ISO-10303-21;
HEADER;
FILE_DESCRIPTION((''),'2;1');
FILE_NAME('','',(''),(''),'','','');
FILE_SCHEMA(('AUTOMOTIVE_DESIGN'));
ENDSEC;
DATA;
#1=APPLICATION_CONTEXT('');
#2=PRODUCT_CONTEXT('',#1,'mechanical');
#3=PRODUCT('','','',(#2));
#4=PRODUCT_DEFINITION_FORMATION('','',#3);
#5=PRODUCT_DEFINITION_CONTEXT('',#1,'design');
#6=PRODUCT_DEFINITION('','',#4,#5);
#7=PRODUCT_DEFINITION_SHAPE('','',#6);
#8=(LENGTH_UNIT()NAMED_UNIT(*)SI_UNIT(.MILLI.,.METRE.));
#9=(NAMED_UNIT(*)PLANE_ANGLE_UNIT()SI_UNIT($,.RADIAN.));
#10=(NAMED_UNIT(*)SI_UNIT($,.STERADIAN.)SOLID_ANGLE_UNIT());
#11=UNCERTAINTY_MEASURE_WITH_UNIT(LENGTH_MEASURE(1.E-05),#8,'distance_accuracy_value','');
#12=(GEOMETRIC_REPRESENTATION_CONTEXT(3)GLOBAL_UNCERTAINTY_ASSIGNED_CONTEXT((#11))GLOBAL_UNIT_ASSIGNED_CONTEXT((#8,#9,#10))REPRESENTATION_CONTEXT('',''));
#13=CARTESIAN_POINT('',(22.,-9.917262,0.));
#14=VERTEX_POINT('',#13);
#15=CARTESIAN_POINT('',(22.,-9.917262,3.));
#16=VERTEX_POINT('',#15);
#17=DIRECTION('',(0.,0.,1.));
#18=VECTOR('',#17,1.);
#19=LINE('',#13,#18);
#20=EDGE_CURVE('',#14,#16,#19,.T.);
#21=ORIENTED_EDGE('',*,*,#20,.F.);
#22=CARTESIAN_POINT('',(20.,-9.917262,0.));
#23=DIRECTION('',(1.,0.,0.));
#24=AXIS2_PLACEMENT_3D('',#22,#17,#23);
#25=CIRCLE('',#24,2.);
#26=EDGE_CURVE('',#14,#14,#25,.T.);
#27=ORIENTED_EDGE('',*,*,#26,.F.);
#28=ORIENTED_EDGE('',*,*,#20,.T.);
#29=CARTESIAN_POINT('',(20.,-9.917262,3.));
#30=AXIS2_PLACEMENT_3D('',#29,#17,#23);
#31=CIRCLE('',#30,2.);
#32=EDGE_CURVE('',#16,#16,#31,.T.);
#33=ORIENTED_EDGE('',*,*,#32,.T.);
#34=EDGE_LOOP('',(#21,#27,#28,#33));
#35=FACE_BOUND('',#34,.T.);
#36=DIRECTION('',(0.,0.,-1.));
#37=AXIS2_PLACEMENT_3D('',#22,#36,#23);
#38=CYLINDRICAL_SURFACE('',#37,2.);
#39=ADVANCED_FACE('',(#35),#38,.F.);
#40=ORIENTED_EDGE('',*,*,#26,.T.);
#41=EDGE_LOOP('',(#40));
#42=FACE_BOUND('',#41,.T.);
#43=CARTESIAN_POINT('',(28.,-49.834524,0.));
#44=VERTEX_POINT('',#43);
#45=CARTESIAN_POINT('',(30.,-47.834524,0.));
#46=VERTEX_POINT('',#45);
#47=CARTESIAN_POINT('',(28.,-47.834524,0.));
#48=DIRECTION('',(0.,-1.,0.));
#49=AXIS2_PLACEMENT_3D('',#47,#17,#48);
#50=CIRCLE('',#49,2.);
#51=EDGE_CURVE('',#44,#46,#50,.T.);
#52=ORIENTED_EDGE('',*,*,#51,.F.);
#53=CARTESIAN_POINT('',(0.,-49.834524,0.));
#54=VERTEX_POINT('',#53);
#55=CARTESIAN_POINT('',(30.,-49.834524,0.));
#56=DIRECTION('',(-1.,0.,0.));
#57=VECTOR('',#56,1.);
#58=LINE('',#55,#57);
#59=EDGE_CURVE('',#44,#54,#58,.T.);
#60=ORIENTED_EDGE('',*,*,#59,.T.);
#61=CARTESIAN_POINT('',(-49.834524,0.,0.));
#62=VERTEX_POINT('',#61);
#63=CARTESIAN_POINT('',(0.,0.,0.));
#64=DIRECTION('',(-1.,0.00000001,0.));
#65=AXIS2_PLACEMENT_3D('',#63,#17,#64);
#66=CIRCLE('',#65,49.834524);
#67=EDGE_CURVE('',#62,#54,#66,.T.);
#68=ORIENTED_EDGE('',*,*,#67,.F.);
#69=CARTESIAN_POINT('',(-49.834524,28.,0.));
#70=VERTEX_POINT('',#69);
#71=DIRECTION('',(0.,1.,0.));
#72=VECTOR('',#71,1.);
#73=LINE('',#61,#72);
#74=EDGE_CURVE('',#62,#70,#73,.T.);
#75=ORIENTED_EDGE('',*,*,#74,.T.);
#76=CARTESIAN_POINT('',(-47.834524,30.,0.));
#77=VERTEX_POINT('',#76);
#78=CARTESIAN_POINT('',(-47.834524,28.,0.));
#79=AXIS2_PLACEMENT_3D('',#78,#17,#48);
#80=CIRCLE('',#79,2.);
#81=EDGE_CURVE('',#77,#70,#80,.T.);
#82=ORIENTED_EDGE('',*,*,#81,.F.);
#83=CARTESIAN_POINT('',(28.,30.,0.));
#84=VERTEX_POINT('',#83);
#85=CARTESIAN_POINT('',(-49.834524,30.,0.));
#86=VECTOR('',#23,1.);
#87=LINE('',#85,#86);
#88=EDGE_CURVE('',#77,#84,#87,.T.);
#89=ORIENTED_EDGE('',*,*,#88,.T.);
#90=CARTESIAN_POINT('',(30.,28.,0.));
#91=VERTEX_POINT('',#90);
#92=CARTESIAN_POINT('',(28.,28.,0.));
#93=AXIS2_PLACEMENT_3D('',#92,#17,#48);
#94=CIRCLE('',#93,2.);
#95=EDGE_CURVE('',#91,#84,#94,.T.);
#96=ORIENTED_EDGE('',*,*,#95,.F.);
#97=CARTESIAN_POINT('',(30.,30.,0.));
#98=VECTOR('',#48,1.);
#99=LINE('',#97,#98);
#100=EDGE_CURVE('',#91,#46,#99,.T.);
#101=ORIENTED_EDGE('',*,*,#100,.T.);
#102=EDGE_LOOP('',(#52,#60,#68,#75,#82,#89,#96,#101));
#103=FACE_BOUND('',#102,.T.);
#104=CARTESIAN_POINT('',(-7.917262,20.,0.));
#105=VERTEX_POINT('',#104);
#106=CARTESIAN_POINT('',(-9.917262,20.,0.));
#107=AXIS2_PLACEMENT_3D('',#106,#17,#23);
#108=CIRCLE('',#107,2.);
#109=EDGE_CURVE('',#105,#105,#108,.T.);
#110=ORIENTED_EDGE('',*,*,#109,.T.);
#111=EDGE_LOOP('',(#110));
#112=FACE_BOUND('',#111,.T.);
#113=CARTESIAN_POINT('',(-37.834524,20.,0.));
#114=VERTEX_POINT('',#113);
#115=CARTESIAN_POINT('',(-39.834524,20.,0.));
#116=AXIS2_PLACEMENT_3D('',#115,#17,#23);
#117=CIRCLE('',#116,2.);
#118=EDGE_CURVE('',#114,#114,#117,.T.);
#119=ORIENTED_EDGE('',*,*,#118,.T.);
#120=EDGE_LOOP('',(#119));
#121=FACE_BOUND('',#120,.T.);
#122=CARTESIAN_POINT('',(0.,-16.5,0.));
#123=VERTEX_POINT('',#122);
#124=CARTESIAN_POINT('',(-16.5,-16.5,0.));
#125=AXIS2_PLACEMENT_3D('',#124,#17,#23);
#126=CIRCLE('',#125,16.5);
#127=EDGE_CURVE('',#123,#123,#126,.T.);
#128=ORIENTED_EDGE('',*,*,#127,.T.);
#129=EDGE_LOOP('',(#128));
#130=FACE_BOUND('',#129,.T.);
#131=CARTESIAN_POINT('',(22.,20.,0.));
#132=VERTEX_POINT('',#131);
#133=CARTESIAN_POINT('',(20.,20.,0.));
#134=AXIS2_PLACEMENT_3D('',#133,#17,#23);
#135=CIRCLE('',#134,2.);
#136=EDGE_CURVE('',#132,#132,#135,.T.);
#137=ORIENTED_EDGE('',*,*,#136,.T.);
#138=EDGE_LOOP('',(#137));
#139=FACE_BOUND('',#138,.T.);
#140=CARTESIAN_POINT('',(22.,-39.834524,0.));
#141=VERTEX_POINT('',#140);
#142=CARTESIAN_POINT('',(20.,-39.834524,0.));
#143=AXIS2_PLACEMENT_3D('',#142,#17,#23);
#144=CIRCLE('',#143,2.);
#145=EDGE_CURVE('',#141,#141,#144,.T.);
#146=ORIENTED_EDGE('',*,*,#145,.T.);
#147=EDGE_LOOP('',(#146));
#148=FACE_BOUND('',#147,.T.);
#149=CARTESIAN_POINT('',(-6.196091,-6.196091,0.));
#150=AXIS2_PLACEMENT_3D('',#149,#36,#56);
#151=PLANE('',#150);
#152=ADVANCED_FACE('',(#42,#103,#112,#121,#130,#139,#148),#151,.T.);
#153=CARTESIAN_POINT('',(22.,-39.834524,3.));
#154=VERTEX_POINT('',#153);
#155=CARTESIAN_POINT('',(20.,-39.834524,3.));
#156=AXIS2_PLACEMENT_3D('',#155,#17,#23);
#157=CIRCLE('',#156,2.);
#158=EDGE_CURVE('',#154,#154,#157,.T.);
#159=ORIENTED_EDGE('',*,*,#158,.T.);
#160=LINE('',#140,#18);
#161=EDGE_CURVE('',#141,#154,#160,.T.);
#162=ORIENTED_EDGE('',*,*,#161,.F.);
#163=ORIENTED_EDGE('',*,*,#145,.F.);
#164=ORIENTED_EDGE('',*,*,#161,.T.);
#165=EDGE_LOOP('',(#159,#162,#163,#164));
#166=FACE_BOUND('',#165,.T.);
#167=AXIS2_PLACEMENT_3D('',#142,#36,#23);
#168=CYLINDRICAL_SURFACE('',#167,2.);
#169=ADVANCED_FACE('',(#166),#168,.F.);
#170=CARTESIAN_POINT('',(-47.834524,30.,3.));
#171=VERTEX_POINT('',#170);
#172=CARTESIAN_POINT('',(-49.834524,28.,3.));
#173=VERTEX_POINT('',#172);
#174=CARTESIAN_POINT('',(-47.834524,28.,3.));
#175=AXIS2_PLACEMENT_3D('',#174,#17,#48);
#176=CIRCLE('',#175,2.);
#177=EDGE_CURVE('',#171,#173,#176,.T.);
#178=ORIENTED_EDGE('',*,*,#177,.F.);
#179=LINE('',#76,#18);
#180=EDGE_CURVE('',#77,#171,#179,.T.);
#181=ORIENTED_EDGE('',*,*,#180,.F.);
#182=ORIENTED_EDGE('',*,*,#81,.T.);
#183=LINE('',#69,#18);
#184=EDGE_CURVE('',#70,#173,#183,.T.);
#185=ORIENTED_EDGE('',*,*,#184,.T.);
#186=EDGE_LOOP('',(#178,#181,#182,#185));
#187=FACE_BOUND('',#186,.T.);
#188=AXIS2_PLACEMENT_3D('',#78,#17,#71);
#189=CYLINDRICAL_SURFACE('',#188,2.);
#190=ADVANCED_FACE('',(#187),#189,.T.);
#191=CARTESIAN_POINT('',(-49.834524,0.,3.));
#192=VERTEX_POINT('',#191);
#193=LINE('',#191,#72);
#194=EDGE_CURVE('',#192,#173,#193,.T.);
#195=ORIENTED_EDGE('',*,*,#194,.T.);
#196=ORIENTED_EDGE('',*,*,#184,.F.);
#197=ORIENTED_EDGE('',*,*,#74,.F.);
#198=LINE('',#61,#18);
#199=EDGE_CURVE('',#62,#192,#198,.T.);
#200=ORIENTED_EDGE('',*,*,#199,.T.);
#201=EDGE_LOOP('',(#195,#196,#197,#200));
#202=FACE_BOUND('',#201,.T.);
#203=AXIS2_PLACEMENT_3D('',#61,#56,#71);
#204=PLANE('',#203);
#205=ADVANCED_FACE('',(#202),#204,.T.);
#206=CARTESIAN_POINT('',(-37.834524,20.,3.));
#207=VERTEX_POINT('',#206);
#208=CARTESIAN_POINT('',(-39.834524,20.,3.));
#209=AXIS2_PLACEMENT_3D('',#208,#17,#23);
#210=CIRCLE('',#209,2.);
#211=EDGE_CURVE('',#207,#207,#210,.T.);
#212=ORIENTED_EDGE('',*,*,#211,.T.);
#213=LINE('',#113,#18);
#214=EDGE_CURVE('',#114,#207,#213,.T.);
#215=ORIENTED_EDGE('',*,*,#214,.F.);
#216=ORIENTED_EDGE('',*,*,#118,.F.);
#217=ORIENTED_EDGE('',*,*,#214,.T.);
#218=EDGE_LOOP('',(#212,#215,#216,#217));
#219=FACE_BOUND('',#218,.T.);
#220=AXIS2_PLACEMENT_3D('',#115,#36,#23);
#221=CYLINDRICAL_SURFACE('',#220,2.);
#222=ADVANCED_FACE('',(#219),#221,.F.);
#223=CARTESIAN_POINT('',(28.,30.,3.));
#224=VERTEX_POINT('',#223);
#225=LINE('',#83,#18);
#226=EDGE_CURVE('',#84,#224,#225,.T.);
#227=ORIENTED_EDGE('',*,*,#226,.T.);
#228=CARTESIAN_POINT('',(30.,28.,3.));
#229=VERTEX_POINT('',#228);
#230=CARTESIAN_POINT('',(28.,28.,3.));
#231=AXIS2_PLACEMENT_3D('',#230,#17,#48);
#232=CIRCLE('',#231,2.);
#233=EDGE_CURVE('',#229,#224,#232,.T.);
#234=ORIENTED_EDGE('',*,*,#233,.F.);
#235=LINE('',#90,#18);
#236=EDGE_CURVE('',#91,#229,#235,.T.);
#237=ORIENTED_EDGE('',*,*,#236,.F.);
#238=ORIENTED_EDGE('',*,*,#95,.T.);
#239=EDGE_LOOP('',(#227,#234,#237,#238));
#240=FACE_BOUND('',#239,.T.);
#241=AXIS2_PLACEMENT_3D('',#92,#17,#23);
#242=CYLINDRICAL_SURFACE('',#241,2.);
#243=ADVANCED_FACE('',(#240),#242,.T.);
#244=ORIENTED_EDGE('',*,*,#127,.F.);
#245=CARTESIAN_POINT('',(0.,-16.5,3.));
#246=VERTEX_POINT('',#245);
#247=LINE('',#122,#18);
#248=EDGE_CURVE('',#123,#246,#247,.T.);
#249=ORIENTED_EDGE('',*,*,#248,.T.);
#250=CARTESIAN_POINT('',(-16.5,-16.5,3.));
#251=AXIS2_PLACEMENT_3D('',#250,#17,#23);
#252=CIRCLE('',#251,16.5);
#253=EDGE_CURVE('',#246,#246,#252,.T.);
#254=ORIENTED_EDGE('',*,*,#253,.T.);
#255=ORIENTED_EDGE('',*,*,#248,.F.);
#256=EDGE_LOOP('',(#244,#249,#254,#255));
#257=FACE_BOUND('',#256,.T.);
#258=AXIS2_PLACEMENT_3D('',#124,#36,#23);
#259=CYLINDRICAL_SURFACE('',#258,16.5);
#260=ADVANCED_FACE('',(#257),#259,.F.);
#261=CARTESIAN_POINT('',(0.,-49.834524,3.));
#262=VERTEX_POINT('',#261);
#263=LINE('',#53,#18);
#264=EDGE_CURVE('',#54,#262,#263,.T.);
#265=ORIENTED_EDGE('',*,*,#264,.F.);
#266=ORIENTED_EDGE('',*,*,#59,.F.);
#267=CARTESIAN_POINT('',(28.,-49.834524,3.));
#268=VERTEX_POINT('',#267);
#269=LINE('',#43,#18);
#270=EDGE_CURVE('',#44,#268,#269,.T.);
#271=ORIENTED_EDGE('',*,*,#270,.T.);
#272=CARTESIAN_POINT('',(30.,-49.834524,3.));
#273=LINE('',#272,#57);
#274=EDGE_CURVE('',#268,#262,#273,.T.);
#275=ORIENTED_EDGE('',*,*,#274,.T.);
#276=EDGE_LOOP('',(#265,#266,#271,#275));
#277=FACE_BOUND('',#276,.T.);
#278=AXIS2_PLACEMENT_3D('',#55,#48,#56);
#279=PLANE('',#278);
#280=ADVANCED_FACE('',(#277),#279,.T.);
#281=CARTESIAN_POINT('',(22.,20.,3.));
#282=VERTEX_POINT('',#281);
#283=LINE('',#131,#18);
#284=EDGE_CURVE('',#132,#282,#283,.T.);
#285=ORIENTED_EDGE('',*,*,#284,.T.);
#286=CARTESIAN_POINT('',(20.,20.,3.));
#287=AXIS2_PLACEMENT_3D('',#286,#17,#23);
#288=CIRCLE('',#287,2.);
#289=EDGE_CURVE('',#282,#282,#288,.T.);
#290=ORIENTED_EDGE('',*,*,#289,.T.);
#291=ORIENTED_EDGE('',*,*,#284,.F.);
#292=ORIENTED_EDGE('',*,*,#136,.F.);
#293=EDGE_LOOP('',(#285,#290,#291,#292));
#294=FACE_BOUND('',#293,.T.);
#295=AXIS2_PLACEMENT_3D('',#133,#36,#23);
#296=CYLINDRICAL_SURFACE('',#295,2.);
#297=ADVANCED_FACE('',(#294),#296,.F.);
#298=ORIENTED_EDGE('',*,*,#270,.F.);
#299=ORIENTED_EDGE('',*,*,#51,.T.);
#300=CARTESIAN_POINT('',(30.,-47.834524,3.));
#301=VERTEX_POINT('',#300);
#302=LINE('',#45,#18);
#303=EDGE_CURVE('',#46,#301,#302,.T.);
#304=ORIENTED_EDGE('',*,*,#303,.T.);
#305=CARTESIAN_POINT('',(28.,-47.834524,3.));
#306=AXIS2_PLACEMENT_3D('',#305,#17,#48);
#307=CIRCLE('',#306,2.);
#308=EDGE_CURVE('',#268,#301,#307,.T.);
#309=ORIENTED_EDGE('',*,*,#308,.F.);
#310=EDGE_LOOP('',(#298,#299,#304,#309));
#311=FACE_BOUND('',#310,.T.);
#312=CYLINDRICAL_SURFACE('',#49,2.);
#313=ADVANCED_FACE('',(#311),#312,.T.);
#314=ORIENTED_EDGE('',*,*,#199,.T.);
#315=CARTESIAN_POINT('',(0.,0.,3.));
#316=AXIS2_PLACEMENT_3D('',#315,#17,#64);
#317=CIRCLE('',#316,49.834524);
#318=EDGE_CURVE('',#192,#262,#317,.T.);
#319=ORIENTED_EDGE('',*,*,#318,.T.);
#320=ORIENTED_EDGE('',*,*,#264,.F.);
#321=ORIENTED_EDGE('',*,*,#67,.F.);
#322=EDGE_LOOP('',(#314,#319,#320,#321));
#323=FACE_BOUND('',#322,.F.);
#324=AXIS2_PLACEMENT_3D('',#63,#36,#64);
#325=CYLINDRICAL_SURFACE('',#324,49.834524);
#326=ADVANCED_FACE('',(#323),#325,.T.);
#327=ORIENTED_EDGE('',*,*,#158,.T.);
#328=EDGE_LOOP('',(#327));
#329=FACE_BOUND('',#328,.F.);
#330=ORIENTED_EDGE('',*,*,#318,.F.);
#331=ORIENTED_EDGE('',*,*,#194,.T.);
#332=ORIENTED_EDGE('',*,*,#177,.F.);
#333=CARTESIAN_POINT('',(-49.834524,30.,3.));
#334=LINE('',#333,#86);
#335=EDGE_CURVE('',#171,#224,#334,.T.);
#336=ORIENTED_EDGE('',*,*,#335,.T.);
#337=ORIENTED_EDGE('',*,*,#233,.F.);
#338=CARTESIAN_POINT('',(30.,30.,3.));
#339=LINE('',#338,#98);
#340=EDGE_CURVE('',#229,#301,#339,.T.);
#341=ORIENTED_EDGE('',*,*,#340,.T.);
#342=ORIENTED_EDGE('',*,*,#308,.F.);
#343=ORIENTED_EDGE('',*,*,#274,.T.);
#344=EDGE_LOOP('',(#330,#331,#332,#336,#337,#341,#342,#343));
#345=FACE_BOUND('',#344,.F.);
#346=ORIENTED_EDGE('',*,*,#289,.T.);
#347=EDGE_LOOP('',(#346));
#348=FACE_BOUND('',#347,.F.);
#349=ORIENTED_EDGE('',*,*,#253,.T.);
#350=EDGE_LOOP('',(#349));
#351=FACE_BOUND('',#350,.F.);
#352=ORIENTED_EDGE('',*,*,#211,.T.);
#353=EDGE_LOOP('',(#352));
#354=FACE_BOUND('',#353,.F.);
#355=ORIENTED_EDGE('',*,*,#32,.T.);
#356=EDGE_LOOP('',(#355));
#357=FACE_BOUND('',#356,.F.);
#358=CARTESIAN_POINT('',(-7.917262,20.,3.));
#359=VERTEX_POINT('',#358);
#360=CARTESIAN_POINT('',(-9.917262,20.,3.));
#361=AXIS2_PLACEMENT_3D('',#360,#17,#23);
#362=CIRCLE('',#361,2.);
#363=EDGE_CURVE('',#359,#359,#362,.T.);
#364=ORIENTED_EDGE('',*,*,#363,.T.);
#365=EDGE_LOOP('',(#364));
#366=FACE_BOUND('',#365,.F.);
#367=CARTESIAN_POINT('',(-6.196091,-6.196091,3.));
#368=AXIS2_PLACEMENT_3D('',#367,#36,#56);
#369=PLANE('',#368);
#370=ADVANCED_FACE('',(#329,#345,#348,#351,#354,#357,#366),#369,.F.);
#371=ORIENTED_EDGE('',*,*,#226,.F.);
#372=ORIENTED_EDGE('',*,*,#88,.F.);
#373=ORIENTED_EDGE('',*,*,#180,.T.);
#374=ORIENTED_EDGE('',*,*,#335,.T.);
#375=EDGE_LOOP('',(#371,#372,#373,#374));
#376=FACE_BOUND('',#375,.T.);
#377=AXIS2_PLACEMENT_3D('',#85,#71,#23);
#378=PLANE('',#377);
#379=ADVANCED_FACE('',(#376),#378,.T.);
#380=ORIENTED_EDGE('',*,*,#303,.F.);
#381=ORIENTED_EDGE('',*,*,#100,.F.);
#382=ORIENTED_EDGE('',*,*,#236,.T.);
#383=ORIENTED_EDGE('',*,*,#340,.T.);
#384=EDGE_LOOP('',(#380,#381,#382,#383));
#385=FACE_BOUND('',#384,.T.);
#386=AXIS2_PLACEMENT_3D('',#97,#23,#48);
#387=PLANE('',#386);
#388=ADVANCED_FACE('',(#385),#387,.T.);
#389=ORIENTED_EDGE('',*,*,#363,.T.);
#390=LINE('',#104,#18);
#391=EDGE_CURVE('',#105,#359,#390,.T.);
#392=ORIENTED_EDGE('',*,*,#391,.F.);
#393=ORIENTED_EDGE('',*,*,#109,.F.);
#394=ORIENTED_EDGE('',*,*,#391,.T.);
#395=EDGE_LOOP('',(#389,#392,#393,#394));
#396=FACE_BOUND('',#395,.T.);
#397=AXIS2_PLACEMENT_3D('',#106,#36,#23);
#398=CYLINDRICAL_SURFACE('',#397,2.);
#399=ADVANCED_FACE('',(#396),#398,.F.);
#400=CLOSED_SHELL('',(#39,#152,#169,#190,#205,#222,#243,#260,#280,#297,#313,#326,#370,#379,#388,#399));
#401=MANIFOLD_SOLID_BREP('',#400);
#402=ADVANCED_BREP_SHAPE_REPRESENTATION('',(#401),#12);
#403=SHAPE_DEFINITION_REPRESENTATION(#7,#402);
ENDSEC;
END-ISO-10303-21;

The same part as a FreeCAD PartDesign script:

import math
import FreeCAD as App
import Part
import Sketcher


def edges_at(feature, points):
    """Names of the edges that pass closest to the given points."""
    edges = feature.Shape.Edges
    near = lambda p: min(range(len(edges)), key=lambda i: edges[i].distToShape(Part.Vertex(*p))[0])
    return sorted({f"Edge{near(p) + 1}" for p in points})

doc = App.newDocument("Part")
body = doc.addObject("PartDesign::Body", "Body")

sketch1 = body.newObject("Sketcher::SketchObject", "Sketch")
sketch1.AttachmentSupport = (doc.getObject("XY_Plane"), [""])
sketch1.MapMode = "FlatFace"
sketch1.addGeometry(Part.LineSegment(App.Vector(0, -49.8, 0), App.Vector(30, -49.8, 0)), False)
sketch1.addGeometry(Part.LineSegment(App.Vector(30, -49.8, 0), App.Vector(30, 30, 0)), False)
sketch1.addGeometry(Part.LineSegment(App.Vector(30, 30, 0), App.Vector(-49.8, 30, 0)), False)
sketch1.addGeometry(Part.LineSegment(App.Vector(-49.8, 30, 0), App.Vector(-49.8, 0, 0)), False)
sketch1.addGeometry(Part.ArcOfCircle(Part.Circle(App.Vector(0, 0, 0), App.Vector(0, 0, 1), 49.8), math.radians(180), math.radians(270)), False)
sketch1.addGeometry(Part.Circle(App.Vector(20, -39.8, 0), App.Vector(0, 0, 1), 2), False)
sketch1.addGeometry(Part.Circle(App.Vector(-16.5, -16.5, 0), App.Vector(0, 0, 1), 16.5), False)
sketch1.addGeometry(Part.Circle(App.Vector(20, -9.9, 0), App.Vector(0, 0, 1), 2), False)
sketch1.addGeometry(Part.Circle(App.Vector(20, 20, 0), App.Vector(0, 0, 1), 2), False)
sketch1.addGeometry(Part.Circle(App.Vector(-9.9, 20, 0), App.Vector(0, 0, 1), 2), False)
sketch1.addGeometry(Part.Circle(App.Vector(-39.8, 20, 0), App.Vector(0, 0, 1), 2), False)
sketch1.addConstraint(Sketcher.Constraint("Coincident", 0, 2, 1, 1))
sketch1.addConstraint(Sketcher.Constraint("Coincident", 1, 2, 2, 1))
sketch1.addConstraint(Sketcher.Constraint("Coincident", 2, 2, 3, 1))
sketch1.addConstraint(Sketcher.Constraint("Tangent", 3, 2, 4, 1))
sketch1.addConstraint(Sketcher.Constraint("Tangent", 4, 2, 0, 1))
sketch1.addConstraint(Sketcher.Constraint("Horizontal", 0))
sketch1.addConstraint(Sketcher.Constraint("Vertical", 1))
sketch1.addConstraint(Sketcher.Constraint("Horizontal", 2))
sketch1.addConstraint(Sketcher.Constraint("Vertical", 3))
sketch1.addConstraint(Sketcher.Constraint("Coincident", 4, 3, -1, 1))
sketch1.addConstraint(Sketcher.Constraint("Equal", 5, 7))
sketch1.addConstraint(Sketcher.Constraint("Equal", 7, 8))
sketch1.addConstraint(Sketcher.Constraint("Equal", 8, 9))
sketch1.addConstraint(Sketcher.Constraint("Equal", 9, 10))
sketch1.addConstraint(Sketcher.Constraint("Horizontal", 8, 3, 9, 3))
sketch1.addConstraint(Sketcher.Constraint("Horizontal", 9, 3, 10, 3))
sketch1.addConstraint(Sketcher.Constraint("Vertical", 5, 3, 7, 3))
sketch1.addConstraint(Sketcher.Constraint("Vertical", 7, 3, 8, 3))
sketch1.addConstraint(Sketcher.Constraint("Equal", 2, 1))
sketch1.addConstraint(Sketcher.Constraint("Diameter", 5, 4.0))
sketch1.addConstraint(Sketcher.Constraint("Diameter", 6, 33.0))
sketch1.addConstraint(Sketcher.Constraint("DistanceX", 0, 1, 0, 2, 30.0))
sketch1.addConstraint(Sketcher.Constraint("DistanceX", -1, 1, 5, 3, 20.0))
sketch1.addConstraint(Sketcher.Constraint("DistanceY", -1, 1, 8, 3, 20.0))
sketch1.addConstraint(Sketcher.Constraint("DistanceY", 0, 2, 5, 3, 10.0))
sketch1.addConstraint(Sketcher.Constraint("DistanceX", 2, 2, 10, 3, 10.0))
sketch1.addConstraint(Sketcher.Constraint("DistanceX", 6, 3, -1, 1, 16.5))
sketch1.addConstraint(Sketcher.Constraint("DistanceY", 6, 3, -1, 1, 16.5))
sketch1.addConstraint(Sketcher.Constraint("Radius", 4, 49.834524))
sketch1.addConstraint(Sketcher.Constraint("DistanceY", 7, 3, -1, 1, 9.917262))
sketch1.addConstraint(Sketcher.Constraint("DistanceX", 9, 3, -1, 1, 9.917262))
pad1 = body.newObject("PartDesign::Pad", "Pad")
pad1.Profile = sketch1
pad1.Length = 3
doc.recompute()

fillet = body.newObject("PartDesign::Fillet", "Fillet")
fillet.Base = (pad1, edges_at(pad1, [(30, -49.835, 1.5), (30, 30, 1.5), (-49.835, 30, 1.5)]))
fillet.Radius = 2

doc.recompute()
